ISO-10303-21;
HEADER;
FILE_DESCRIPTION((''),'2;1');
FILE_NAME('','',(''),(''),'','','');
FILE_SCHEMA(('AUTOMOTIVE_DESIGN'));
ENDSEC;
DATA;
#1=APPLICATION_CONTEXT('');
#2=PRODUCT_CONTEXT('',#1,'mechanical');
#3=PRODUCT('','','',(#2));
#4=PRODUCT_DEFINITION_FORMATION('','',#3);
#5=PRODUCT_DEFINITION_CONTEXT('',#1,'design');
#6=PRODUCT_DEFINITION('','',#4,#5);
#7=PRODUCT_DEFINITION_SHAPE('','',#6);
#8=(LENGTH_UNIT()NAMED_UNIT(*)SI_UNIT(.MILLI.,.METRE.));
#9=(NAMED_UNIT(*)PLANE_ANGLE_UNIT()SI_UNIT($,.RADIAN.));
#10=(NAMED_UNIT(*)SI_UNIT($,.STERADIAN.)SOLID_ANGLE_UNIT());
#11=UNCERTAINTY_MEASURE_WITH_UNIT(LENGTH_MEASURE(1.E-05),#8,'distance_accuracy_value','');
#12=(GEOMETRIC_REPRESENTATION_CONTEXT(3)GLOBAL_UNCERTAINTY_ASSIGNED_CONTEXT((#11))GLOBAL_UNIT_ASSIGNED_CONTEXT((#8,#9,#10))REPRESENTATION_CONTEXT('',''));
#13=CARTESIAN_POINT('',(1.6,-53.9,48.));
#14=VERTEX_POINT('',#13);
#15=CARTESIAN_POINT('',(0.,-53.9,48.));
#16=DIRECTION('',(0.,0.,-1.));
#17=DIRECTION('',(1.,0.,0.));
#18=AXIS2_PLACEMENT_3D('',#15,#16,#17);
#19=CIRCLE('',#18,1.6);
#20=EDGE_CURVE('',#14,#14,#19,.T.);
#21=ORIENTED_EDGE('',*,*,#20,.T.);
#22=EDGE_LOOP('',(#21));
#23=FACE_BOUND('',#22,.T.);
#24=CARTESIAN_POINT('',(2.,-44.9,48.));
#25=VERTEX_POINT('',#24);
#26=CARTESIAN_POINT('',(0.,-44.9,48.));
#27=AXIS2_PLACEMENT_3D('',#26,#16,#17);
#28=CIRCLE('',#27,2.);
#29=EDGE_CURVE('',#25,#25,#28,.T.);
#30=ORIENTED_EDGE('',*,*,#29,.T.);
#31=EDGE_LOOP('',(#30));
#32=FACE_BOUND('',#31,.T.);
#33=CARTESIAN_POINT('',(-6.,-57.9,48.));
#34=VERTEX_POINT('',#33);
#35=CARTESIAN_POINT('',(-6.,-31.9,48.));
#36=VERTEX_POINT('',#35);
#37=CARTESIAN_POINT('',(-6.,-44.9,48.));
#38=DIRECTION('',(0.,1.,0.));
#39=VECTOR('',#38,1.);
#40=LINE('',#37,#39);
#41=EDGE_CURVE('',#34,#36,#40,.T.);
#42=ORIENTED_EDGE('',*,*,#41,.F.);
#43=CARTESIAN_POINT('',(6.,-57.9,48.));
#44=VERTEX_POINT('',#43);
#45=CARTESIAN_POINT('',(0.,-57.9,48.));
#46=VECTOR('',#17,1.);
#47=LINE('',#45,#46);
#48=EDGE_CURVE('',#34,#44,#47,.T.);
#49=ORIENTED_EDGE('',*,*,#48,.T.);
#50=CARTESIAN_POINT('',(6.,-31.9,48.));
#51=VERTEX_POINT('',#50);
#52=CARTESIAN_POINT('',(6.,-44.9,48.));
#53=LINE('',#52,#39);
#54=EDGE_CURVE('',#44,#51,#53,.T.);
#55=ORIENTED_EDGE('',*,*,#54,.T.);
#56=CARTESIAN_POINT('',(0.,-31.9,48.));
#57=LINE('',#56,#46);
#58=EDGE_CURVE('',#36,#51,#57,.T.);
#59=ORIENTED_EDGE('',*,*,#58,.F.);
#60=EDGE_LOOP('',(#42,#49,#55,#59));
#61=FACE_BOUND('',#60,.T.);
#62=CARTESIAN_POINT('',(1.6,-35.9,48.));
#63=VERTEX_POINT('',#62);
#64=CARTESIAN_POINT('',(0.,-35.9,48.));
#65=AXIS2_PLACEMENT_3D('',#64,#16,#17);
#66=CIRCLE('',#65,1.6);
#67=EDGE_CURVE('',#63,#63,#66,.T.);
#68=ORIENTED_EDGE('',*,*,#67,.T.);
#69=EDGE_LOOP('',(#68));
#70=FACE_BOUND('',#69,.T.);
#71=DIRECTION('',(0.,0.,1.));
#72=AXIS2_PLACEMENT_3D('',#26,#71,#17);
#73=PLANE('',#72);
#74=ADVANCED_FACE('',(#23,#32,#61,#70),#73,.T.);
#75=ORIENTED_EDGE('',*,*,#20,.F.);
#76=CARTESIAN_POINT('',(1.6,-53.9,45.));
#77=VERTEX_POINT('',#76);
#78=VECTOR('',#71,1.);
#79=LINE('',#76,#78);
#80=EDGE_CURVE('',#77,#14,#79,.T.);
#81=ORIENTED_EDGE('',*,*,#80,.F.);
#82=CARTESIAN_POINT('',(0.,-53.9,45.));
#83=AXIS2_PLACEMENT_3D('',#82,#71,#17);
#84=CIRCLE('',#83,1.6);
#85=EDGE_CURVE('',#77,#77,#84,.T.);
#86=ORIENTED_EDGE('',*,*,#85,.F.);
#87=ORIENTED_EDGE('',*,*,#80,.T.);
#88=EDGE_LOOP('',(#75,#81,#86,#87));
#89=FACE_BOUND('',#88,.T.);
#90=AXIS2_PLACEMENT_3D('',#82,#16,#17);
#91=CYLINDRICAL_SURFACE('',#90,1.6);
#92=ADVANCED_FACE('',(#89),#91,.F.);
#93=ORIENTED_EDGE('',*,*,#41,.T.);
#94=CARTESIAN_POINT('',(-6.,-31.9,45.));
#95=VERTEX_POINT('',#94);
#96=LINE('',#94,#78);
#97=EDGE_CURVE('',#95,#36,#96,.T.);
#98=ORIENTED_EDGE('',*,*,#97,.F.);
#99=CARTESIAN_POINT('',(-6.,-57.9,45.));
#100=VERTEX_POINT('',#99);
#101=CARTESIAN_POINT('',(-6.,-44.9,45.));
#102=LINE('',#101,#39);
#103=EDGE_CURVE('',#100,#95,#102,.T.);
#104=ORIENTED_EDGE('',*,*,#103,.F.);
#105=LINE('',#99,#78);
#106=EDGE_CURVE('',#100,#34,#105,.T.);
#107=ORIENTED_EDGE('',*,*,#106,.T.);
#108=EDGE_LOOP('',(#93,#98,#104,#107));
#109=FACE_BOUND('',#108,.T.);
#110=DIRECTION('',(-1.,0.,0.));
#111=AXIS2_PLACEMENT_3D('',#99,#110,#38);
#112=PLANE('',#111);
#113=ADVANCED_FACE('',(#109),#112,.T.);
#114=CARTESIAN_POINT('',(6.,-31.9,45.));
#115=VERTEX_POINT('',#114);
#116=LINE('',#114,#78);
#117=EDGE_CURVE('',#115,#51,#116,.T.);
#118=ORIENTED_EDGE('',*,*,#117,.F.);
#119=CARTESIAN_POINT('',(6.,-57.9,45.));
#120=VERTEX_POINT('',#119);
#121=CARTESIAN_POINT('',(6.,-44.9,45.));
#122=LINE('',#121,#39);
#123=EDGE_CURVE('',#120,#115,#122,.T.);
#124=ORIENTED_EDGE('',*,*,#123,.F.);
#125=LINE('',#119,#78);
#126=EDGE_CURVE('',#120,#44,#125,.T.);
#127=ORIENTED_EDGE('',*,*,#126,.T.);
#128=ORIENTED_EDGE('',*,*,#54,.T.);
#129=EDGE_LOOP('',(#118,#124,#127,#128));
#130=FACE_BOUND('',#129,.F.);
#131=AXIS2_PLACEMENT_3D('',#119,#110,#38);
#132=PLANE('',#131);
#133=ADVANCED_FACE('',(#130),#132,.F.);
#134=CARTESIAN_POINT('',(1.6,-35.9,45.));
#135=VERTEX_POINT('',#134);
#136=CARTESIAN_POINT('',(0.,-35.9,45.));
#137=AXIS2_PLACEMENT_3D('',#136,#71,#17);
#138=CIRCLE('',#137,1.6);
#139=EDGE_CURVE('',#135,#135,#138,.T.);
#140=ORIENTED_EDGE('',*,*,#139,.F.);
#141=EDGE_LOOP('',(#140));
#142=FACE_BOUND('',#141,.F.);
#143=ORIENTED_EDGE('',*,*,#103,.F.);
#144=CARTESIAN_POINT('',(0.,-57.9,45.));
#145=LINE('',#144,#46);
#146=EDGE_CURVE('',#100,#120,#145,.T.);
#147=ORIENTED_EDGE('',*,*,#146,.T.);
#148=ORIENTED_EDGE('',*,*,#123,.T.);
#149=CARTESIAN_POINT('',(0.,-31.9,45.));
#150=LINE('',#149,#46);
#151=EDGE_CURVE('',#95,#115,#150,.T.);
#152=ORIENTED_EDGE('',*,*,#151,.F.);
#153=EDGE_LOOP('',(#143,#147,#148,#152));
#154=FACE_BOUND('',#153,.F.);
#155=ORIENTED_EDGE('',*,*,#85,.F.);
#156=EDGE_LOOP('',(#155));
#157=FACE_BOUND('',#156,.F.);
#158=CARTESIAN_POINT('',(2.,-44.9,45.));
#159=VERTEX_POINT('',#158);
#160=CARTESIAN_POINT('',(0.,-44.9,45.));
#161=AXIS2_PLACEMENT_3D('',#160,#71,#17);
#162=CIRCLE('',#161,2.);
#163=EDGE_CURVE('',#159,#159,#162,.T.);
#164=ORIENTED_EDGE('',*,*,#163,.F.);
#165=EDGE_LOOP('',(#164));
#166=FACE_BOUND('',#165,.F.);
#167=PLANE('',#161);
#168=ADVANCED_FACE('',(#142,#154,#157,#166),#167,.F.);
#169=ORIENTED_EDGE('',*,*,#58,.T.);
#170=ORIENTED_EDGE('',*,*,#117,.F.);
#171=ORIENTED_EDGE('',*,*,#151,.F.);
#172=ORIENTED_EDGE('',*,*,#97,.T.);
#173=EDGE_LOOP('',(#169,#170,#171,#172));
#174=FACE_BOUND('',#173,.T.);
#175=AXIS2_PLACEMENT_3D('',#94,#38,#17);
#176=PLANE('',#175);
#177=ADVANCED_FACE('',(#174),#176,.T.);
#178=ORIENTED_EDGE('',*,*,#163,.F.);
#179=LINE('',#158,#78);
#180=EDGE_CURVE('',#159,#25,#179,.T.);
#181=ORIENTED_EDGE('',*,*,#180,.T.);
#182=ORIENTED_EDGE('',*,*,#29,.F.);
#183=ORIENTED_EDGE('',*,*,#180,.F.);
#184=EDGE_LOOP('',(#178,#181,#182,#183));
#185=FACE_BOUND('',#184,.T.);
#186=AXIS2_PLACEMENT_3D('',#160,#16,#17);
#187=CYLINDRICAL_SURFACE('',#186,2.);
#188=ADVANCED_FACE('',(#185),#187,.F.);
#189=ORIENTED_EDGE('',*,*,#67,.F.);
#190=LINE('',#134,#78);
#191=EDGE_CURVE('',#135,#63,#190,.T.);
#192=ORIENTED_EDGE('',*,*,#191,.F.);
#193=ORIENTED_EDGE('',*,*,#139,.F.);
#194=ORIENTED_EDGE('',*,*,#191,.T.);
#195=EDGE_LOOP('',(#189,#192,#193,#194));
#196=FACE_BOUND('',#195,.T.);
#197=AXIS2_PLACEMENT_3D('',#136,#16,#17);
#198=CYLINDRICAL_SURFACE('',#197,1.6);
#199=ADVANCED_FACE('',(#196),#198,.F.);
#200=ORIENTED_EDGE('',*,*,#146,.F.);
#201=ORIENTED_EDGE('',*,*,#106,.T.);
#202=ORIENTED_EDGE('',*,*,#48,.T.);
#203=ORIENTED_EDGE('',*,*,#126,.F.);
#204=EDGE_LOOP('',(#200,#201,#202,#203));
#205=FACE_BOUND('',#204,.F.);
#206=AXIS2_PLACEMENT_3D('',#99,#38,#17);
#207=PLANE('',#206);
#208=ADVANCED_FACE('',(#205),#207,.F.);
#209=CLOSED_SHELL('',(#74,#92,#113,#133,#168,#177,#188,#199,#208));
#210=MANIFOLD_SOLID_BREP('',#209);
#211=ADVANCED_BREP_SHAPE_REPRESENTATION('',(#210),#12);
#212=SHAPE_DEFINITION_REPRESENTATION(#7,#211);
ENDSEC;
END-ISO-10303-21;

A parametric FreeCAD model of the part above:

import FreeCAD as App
import Part
import Sketcher


def add_polygon(sketch, points):
    """Adds a closed chain of lines whose ends are joined by coincident constraints."""
    first, n = sketch.GeometryCount, len(points)
    for a, b in zip(points, points[1:] + points[:1]):
        sketch.addGeometry(Part.LineSegment(App.Vector(*a, 0), App.Vector(*b, 0)), False)
    for i in range(n):
        sketch.addConstraint(Sketcher.Constraint("Coincident", first + i, 2, first + (i + 1) % n, 1))

doc = App.newDocument("Part")
body = doc.addObject("PartDesign::Body", "Body")

sketch1 = body.newObject("Sketcher::SketchObject", "Sketch")
sketch1.AttachmentSupport = (doc.getObject("XY_Plane"), [""])
sketch1.MapMode = "FlatFace"
sketch1.addGeometry(Part.Circle(App.Vector(0, 0, 0), App.Vector(0, 0, 1), 2), False)
sketch1.addConstraint([
    Sketcher.Constraint("Coincident", 0, 3, -1, 1),
    Sketcher.Constraint("Diameter", 0, 4.0),
])
pad1 = body.newObject("PartDesign::Pad", "Pad")
pad1.Profile = sketch1
pad1.Length = 10
body2 = doc.addObject("PartDesign::Body", "Body001")

sketch2 = body2.newObject("Sketcher::SketchObject", "Sketch001")
sketch2.AttachmentSupport = (doc.getObject("XY_Plane001"), [""])
sketch2.MapMode = "FlatFace"
sketch2.addGeometry(Part.Circle(App.Vector(0, -9, 0), App.Vector(0, 0, 1), 1.6), False)
sketch2.addConstraint([
    Sketcher.Constraint("PointOnObject", 0, 3, -2),
    Sketcher.Constraint("Diameter", 0, 3.2),
    Sketcher.Constraint("DistanceY", 0, 3, -1, 1, 9.0),
])
pad2 = body2.newObject("PartDesign::Pad", "Pad001")
pad2.Profile = sketch2
pad2.Length = 10
body3 = doc.addObject("PartDesign::Body", "Body002")
body3.AllowCompound = True

sketch3 = body3.newObject("Sketcher::SketchObject", "Sketch002")
sketch3.AttachmentSupport = (doc.getObject("XY_Plane002"), [""])
sketch3.MapMode = "FlatFace"
sketch3.addGeometry(Part.Circle(App.Vector(0, 9, 0), App.Vector(0, 0, 1), 1.6), False)
sketch3.addConstraint([
    Sketcher.Constraint("PointOnObject", 0, 3, -2),
    Sketcher.Constraint("Diameter", 0, 3.2),
    Sketcher.Constraint("DistanceY", -1, 1, 0, 3, 9.0),
])
pad3 = body3.newObject("PartDesign::Pad", "Pad002")
pad3.Profile = sketch3
pad3.Length = 10
doc.recompute()

boolean = body3.newObject("PartDesign::Boolean", "Boolean")
boolean.Type = "Fuse"
boolean.addObjects([body])
doc.recompute()

boolean2 = body3.newObject("PartDesign::Boolean", "Boolean001")
boolean2.Type = "Fuse"
boolean2.addObjects([body2])
body4 = doc.addObject("PartDesign::Body", "Body003")

sketch4 = body4.newObject("Sketcher::SketchObject", "Sketch003")
sketch4.AttachmentSupport = (doc.getObject("XY_Plane003"), [""])
sketch4.MapMode = "FlatFace"
add_polygon(sketch4, [(-6, 13), (-6, -13), (6, -13), (6, 13)])
sketch4.addConstraint([
    Sketcher.Constraint("Vertical", 0),
    Sketcher.Constraint("Horizontal", 1),
    Sketcher.Constraint("Vertical", 2),
    Sketcher.Constraint("Horizontal", 3),
    Sketcher.Constraint("Symmetric", 0, 2, 2, 2, -1, 1),
    Sketcher.Constraint("DistanceX", 1, 1, 1, 2, 12.0),
    Sketcher.Constraint("DistanceY", 0, 2, 0, 1, 26.0),
])
pad4 = body4.newObject("PartDesign::Pad", "Pad003")
pad4.Profile = sketch4
pad4.Length = 3
doc.recompute()

boolean3 = body4.newObject("PartDesign::Boolean", "Boolean002")
boolean3.Type = "Cut"
boolean3.addObjects([body3])
body5 = doc.addObject("PartDesign::Body", "Body004")
doc.recompute()

body4.Placement = App.Placement(App.Vector(0, -44.9, 45), App.Rotation(App.Vector(0, 0, 1), 0))
boolean4 = body5.newObject("PartDesign::Boolean", "Boolean003")
boolean4.Type = "Fuse"
boolean4.addObjects([body4])

doc.recompute()
